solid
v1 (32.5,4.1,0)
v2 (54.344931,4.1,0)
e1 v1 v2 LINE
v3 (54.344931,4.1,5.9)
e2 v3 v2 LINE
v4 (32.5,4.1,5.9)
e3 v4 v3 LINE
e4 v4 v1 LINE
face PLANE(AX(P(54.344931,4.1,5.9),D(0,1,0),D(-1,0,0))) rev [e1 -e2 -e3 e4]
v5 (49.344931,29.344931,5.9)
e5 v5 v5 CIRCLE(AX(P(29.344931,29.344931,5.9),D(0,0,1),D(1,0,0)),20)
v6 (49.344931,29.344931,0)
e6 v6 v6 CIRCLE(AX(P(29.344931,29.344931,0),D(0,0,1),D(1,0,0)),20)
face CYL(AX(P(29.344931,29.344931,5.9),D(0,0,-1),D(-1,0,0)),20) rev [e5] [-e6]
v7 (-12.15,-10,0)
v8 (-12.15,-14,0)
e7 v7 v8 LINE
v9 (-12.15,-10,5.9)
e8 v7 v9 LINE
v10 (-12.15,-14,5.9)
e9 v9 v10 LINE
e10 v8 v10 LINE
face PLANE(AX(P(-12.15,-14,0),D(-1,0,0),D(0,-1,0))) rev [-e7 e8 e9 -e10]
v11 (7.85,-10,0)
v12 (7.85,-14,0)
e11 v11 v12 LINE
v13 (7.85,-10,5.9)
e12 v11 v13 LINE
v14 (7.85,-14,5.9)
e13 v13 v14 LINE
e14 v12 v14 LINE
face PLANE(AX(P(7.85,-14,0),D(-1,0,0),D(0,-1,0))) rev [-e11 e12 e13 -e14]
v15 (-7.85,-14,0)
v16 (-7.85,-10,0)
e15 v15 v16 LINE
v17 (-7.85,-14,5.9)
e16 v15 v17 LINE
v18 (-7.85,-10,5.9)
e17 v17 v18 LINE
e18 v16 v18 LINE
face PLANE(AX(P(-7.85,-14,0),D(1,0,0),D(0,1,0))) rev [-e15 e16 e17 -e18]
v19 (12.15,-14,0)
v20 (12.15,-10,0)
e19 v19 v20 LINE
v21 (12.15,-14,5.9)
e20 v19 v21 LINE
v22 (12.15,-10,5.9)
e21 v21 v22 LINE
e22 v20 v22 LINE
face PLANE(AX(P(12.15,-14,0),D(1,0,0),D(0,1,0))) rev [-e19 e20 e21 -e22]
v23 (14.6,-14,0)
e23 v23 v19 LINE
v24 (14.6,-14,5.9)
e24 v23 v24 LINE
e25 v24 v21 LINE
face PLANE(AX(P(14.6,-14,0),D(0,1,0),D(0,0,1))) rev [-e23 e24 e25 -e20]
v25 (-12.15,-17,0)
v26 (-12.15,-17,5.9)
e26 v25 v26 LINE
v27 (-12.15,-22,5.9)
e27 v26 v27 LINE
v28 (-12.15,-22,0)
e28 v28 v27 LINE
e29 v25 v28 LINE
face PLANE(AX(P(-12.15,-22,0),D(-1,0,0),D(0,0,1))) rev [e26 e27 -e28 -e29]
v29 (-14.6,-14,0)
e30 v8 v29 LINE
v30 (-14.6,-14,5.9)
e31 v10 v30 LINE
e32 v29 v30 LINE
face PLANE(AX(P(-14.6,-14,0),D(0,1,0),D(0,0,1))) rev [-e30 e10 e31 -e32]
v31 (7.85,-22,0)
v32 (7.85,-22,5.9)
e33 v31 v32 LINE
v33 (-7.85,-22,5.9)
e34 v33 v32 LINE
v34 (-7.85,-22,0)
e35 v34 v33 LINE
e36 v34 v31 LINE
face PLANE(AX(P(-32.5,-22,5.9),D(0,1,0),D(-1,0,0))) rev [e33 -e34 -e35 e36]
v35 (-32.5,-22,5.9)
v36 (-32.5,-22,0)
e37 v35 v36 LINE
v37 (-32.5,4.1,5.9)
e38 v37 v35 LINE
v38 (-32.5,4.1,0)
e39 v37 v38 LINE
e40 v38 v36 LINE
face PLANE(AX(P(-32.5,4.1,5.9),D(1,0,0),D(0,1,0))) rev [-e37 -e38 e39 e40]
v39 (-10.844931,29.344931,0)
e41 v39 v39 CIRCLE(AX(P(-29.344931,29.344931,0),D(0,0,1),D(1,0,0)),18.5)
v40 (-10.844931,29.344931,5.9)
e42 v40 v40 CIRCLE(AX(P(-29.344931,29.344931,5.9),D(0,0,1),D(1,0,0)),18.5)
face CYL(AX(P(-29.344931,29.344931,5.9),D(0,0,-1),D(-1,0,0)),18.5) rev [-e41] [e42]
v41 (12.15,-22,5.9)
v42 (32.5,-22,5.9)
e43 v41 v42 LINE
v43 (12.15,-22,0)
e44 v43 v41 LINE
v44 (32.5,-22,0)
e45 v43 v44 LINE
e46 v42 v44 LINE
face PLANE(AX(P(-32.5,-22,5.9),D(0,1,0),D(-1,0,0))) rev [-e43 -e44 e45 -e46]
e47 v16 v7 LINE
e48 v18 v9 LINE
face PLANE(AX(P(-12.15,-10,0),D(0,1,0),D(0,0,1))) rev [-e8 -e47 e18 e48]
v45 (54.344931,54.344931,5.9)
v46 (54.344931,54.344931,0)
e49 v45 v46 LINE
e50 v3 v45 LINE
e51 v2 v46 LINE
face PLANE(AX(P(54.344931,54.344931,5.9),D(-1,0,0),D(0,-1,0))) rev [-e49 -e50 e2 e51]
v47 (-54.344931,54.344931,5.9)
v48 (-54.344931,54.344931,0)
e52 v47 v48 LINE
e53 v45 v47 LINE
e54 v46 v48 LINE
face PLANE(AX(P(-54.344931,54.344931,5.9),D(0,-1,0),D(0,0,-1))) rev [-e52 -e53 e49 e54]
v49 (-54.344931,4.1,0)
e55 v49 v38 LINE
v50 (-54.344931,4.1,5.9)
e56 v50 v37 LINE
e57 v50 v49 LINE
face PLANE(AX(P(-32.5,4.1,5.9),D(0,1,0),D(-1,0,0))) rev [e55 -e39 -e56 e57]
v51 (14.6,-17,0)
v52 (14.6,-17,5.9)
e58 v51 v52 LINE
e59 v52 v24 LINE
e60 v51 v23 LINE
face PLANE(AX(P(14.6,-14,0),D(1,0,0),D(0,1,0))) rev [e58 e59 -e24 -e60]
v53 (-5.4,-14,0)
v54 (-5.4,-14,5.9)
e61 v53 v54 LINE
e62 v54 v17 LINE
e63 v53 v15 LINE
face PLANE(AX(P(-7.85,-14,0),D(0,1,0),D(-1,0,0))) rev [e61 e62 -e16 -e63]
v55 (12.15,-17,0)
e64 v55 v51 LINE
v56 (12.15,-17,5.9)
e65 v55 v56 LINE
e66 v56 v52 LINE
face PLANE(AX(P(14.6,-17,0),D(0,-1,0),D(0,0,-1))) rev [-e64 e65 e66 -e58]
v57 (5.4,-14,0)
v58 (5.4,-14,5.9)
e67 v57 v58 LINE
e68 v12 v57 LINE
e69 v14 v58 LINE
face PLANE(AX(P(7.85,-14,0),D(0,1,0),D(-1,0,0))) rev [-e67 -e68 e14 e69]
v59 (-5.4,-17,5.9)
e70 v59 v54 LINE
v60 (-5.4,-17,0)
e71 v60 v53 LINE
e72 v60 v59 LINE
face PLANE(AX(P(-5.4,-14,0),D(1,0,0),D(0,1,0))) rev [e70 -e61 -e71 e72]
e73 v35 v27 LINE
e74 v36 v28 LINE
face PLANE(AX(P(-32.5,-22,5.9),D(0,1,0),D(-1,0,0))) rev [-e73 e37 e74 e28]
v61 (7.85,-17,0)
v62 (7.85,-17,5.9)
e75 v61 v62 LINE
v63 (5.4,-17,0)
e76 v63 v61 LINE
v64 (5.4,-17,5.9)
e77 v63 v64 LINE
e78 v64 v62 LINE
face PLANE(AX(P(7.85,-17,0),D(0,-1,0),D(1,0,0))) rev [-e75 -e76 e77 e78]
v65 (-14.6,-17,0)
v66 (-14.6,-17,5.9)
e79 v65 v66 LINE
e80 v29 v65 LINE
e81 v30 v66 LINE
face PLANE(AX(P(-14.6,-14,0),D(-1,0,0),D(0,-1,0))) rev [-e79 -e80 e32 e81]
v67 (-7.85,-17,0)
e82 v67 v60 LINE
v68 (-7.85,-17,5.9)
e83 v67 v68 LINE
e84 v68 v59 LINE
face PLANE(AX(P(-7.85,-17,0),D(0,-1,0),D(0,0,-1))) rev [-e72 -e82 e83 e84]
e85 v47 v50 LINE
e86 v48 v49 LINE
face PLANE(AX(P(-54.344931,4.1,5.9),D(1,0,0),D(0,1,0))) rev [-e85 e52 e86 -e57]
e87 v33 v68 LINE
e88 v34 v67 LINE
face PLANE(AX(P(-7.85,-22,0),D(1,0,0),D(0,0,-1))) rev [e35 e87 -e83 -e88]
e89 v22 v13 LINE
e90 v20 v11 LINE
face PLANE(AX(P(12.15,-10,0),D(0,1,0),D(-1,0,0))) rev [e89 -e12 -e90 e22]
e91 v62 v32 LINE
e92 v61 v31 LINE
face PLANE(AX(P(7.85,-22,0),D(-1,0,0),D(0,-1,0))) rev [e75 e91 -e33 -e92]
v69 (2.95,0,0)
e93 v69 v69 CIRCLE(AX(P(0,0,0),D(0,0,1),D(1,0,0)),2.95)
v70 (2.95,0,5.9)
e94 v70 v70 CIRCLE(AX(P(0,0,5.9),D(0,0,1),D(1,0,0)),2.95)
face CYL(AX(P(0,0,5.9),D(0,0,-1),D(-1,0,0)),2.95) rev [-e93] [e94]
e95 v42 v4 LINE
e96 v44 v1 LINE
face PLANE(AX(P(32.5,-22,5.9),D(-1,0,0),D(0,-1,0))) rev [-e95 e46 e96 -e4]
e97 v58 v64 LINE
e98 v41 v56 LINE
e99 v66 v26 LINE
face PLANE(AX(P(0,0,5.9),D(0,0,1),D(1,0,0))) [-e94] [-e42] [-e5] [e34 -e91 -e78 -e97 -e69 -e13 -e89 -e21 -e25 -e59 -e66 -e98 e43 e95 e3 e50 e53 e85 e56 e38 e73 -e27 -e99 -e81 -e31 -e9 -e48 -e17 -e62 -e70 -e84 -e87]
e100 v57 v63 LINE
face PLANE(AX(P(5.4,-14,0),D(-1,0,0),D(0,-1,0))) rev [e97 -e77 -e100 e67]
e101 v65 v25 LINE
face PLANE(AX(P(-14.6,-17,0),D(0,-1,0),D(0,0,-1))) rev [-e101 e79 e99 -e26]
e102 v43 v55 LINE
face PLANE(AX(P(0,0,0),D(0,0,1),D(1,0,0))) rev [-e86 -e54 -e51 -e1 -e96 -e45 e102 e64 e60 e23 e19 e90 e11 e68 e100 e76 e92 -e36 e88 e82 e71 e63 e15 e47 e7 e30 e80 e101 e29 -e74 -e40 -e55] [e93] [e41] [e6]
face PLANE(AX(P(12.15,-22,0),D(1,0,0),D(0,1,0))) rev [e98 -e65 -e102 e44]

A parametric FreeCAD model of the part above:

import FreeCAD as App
import Part
import Sketcher


def add_polygon(sketch, points):
    """Adds a closed chain of lines whose ends are joined by coincident constraints."""
    first, n = sketch.GeometryCount, len(points)
    for a, b in zip(points, points[1:] + points[:1]):
        sketch.addGeometry(Part.LineSegment(App.Vector(*a, 0), App.Vector(*b, 0)), False)
    for i in range(n):
        sketch.addConstraint(Sketcher.Constraint("Coincident", first + i, 2, first + (i + 1) % n, 1))

doc = App.newDocument("Part")
body = doc.addObject("PartDesign::Body", "Body")

sketch1 = body.newObject("Sketcher::SketchObject", "Sketch")
sketch1.AttachmentSupport = (doc.getObject("XY_Plane"), [""])
sketch1.MapMode = "FlatFace"
add_polygon(sketch1, [(-32.5, 4.1), (-32.5, -22), (32.5, -22), (32.5, 4.1), (54.3, 4.1), (54.3, 54.3), (-54.3, 54.3), (-54.3, 4.1)])
sketch1.addGeometry(Part.Circle(App.Vector(0, 0, 0), App.Vector(0, 0, 1), 3), False)
sketch1.addGeometry(Part.Circle(App.Vector(-29.3, 29.3, 0), App.Vector(0, 0, 1), 18.5), False)
sketch1.addGeometry(Part.Circle(App.Vector(29.3, 29.3, 0), App.Vector(0, 0, 1), 20), False)
sketch1.addConstraint(Sketcher.Constraint("Vertical", 0))
sketch1.addConstraint(Sketcher.Constraint("Horizontal", 1))
sketch1.addConstraint(Sketcher.Constraint("Vertical", 2))
sketch1.addConstraint(Sketcher.Constraint("Horizontal", 3))
sketch1.addConstraint(Sketcher.Constraint("Vertical", 4))
sketch1.addConstraint(Sketcher.Constraint("Horizontal", 5))
sketch1.addConstraint(Sketcher.Constraint("Vertical", 6))
sketch1.addConstraint(Sketcher.Constraint("Horizontal", 7))
sketch1.addConstraint(Sketcher.Constraint("Coincident", 8, 3, -1, 1))
sketch1.addConstraint(Sketcher.Constraint("Symmetric", 9, 3, 10, 3, -2))
sketch1.addConstraint(Sketcher.Constraint("Symmetric", 3, 2, 6, 2, -2))
sketch1.addConstraint(Sketcher.Constraint("Equal", 3, 7))
sketch1.addConstraint(Sketcher.Constraint("Diameter", 9, 37.0))
sketch1.addConstraint(Sketcher.Constraint("Diameter", 10, 40.0))
sketch1.addConstraint(Sketcher.Constraint("Diameter", 8, 5.9))
sketch1.addConstraint(Sketcher.Constraint("DistanceX", 1, 1, 1, 2, 65.0))
sketch1.addConstraint(Sketcher.Constraint("DistanceY", 0, 2, 0, 1, 26.1))
sketch1.addConstraint(Sketcher.Constraint("DistanceY", 0, 2, -1, 1, 22.0))
sketch1.addConstraint(Sketcher.Constraint("DistanceX", 10, 3, 3, 2, 25.0))
sketch1.addConstraint(Sketcher.Constraint("DistanceY", 10, 3, 4, 2, 25.0))
sketch1.addConstraint(Sketcher.Constraint("DistanceX", 3, 1, 3, 2, 21.844931))
sketch1.addConstraint(Sketcher.Constraint("DistanceY", 4, 1, 4, 2, 50.244931))
pad1 = body.newObject("PartDesign::Pad", "Pad")
pad1.Profile = sketch1
pad1.Length = 5.9

sketch2 = body.newObject("Sketcher::SketchObject", "Sketch001")
sketch2.AttachmentSupport = (doc.getObject("XY_Plane"), [""])
sketch2.MapMode = "FlatFace"
sketch2.AttachmentOffset = App.Placement(App.Vector(0, 0, 5.9), App.Rotation())
add_polygon(sketch2, [(-12.2, -22), (-7.8, -22), (-7.8, -17), (-5.4, -17), (-5.4, -14), (-7.8, -14), (-7.8, -10), (-12.2, -10), (-12.2, -14), (-14.6, -14), (-14.6, -17), (-12.2, -17)])
add_polygon(sketch2, [(7.8, -10), (7.8, -14), (5.4, -14), (5.4, -17), (7.8, -17), (7.8, -22), (12.2, -22), (12.2, -17), (14.6, -17), (14.6, -14), (12.2, -14), (12.2, -10)])
sketch2.addConstraint(Sketcher.Constraint("Horizontal", 0))
sketch2.addConstraint(Sketcher.Constraint("Vertical", 1))
sketch2.addConstraint(Sketcher.Constraint("Horizontal", 2))
sketch2.addConstraint(Sketcher.Constraint("Vertical", 3))
sketch2.addConstraint(Sketcher.Constraint("Horizontal", 4))
sketch2.addConstraint(Sketcher.Constraint("Vertical", 5))
sketch2.addConstraint(Sketcher.Constraint("Horizontal", 6))
sketch2.addConstraint(Sketcher.Constraint("Vertical", 7))
sketch2.addConstraint(Sketcher.Constraint("Horizontal", 8))
sketch2.addConstraint(Sketcher.Constraint("Vertical", 9))
sketch2.addConstraint(Sketcher.Constraint("Horizontal", 10))
sketch2.addConstraint(Sketcher.Constraint("Vertical", 11))
sketch2.addConstraint(Sketcher.Constraint("Vertical", 12))
sketch2.addConstraint(Sketcher.Constraint("Horizontal", 13))
sketch2.addConstraint(Sketcher.Constraint("Vertical", 14))
sketch2.addConstraint(Sketcher.Constraint("Horizontal", 15))
sketch2.addConstraint(Sketcher.Constraint("Vertical", 16))
sketch2.addConstraint(Sketcher.Constraint("Horizontal", 17))
sketch2.addConstraint(Sketcher.Constraint("Vertical", 18))
sketch2.addConstraint(Sketcher.Constraint("Horizontal", 19))
sketch2.addConstraint(Sketcher.Constraint("Vertical", 20))
sketch2.addConstraint(Sketcher.Constraint("Horizontal", 21))
sketch2.addConstraint(Sketcher.Constraint("Vertical", 22))
sketch2.addConstraint(Sketcher.Constraint("Horizontal", 23))
sketch2.addConstraint(Sketcher.Constraint("Symmetric", 4, 2, 12, 2, -2))
sketch2.addConstraint(Sketcher.Constraint("Symmetric", 2, 2, 14, 2, -2))
sketch2.addConstraint(Sketcher.Constraint("Symmetric", 0, 2, 16, 2, -2))
sketch2.addConstraint(Sketcher.Constraint("Symmetric", 10, 2, 18, 2, -2))
sketch2.addConstraint(Sketcher.Constraint("Symmetric", 8, 2, 20, 2, -2))
sketch2.addConstraint(Sketcher.Constraint("Symmetric", 6, 2, 22, 2, -2))
sketch2.addConstraint(Sketcher.Constraint("Horizontal", 4, 2, 7, 2))
sketch2.addConstraint(Sketcher.Constraint("Horizontal", 2, 2, 9, 2))
sketch2.addConstraint(Sketcher.Constraint("Vertical", 1, 2, 4, 2))
sketch2.addConstraint(Sketcher.Constraint("Vertical", 7, 2, 10, 2))
sketch2.addConstraint(Sketcher.Constraint("Equal", 4, 8))
sketch2.addConstraint(Sketcher.Constraint("DistanceY", 1, 1, 1, 2, 5.0))
sketch2.addConstraint(Sketcher.Constraint("DistanceY", 3, 1, 3, 2, 3.0))
sketch2.addConstraint(Sketcher.Constraint("DistanceY", 5, 1, 5, 2, 4.0))
sketch2.addConstraint(Sketcher.Constraint("DistanceX", 0, 1, 0, 2, 4.3))
sketch2.addConstraint(Sketcher.Constraint("DistanceY", 0, 2, -1, 1, 22.0))
sketch2.addConstraint(Sketcher.Constraint("DistanceX", 2, 1, 2, 2, 2.45))
sketch2.addConstraint(Sketcher.Constraint("DistanceX", 2, 2, -1, 1, 5.4))
pocket1 = body.newObject("PartDesign::Pocket", "Pocket")
pocket1.Profile = sketch2
pocket1.Type = "ThroughAll"

doc.recompute()
